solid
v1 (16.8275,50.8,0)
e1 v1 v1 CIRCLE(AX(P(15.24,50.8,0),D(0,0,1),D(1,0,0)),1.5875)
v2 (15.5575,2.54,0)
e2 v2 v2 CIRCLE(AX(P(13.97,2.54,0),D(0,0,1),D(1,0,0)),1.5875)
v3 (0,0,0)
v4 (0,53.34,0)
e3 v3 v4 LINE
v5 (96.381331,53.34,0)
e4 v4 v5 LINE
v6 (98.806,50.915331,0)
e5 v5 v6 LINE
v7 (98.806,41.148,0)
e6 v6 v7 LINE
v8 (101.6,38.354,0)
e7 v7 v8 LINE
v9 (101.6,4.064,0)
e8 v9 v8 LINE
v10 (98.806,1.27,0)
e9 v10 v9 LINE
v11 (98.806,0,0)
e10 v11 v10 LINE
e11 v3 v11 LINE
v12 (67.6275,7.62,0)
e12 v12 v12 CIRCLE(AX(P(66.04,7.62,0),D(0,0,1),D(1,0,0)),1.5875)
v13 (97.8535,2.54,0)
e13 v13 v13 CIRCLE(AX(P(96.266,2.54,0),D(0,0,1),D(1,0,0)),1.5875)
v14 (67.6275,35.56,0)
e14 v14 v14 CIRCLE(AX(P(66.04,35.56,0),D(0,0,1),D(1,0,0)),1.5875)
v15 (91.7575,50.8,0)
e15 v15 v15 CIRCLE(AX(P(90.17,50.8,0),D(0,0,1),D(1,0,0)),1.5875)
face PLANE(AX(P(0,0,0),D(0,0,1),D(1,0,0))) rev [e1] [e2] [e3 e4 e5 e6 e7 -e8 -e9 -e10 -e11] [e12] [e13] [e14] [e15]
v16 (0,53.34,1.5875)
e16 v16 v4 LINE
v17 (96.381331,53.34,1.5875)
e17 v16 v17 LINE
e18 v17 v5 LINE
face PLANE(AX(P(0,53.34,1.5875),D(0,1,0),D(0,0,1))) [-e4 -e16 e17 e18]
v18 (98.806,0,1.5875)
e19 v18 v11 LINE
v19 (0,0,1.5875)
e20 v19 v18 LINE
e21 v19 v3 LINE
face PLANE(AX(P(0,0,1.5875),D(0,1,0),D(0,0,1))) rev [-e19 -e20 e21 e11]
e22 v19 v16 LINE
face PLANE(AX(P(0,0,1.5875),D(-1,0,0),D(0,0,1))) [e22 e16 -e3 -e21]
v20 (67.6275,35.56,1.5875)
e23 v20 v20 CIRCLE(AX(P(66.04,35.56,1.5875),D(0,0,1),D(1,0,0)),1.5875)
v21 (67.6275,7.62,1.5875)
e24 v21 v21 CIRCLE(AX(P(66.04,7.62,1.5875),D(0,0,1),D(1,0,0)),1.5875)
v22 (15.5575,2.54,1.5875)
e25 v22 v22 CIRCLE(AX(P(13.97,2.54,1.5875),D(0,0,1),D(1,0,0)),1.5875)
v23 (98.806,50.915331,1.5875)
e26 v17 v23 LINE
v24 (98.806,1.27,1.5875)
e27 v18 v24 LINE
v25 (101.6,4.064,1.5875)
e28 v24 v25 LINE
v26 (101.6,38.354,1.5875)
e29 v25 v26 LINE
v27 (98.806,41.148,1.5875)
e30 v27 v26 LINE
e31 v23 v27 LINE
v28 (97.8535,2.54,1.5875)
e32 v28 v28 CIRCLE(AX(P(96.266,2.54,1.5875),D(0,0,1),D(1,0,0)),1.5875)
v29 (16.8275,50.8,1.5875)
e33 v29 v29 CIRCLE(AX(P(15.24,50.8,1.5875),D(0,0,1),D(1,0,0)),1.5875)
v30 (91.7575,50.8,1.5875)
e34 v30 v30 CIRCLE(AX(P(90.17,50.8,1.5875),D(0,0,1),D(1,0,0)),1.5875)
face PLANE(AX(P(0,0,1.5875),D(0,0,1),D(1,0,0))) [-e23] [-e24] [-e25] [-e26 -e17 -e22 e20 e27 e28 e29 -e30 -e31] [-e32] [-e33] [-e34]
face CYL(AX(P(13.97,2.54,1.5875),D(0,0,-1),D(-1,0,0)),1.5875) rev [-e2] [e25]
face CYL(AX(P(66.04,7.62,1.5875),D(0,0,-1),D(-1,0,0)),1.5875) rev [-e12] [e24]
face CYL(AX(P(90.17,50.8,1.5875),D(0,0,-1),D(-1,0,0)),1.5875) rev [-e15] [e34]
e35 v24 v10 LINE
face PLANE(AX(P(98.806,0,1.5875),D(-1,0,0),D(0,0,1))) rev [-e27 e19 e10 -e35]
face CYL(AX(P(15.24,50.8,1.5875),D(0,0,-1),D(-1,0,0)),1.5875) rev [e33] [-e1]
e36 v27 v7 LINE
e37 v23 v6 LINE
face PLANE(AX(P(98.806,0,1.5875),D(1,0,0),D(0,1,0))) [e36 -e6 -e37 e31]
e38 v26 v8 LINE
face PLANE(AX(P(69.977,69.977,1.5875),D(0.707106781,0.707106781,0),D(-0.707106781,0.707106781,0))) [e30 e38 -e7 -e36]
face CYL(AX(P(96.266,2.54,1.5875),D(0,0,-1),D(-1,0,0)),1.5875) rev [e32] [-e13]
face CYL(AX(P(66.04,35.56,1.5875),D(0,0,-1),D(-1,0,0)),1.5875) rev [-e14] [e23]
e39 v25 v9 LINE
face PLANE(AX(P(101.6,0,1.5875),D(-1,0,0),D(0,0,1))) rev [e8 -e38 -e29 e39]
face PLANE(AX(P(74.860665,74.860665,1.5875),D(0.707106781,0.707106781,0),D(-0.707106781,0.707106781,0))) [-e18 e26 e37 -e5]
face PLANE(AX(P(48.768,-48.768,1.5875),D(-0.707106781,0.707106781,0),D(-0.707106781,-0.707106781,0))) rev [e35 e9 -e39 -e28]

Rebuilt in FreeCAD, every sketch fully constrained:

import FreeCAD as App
import Part
import Sketcher
Q = App.Units.Quantity


def add_polygon(sketch, points):
    """Adds a closed chain of lines whose ends are joined by coincident constraints."""
    first, n = sketch.GeometryCount, len(points)
    for a, b in zip(points, points[1:] + points[:1]):
        sketch.addGeometry(Part.LineSegment(App.Vector(*a, 0), App.Vector(*b, 0)), False)
    for i in range(n):
        sketch.addConstraint(Sketcher.Constraint("Coincident", first + i, 2, first + (i + 1) % n, 1))

doc = App.newDocument("Part")
body = doc.addObject("PartDesign::Body", "Body")

sketch1 = body.newObject("Sketcher::SketchObject", "Sketch")
sketch1.AttachmentSupport = (doc.getObject("XY_Plane"), [""])
sketch1.MapMode = "FlatFace"
add_polygon(sketch1, [(0, 53.3), (0, 0), (98.8, 0), (98.8, 1.3), (101.6, 4.1), (101.6, 38.4), (98.8, 41.1), (98.8, 50.9), (96.4, 53.3)])
sketch1.addGeometry(Part.Circle(App.Vector(14, 2.5, 0), App.Vector(0, 0, 1), 1.6), False)
sketch1.addGeometry(Part.Circle(App.Vector(66, 7.6, 0), App.Vector(0, 0, 1), 1.6), False)
sketch1.addGeometry(Part.Circle(App.Vector(96.3, 2.5, 0), App.Vector(0, 0, 1), 1.6), False)
sketch1.addGeometry(Part.Circle(App.Vector(15.2, 50.8, 0), App.Vector(0, 0, 1), 1.6), False)
sketch1.addGeometry(Part.Circle(App.Vector(66, 35.6, 0), App.Vector(0, 0, 1), 1.6), False)
sketch1.addGeometry(Part.Circle(App.Vector(90.2, 50.8, 0), App.Vector(0, 0, 1), 1.6), False)
sketch1.addConstraint([
    Sketcher.Constraint("Vertical", 0),
    Sketcher.Constraint("Horizontal", 1),
    Sketcher.Constraint("Vertical", 2),
    Sketcher.Constraint("Vertical", 4),
    Sketcher.Constraint("Vertical", 6),
    Sketcher.Constraint("Horizontal", 8),
    Sketcher.Constraint("Coincident", 0, 2, -1, 1),
    Sketcher.Constraint("Equal", 9, 10),
    Sketcher.Constraint("Equal", 10, 11),
    Sketcher.Constraint("Equal", 11, 12),
    Sketcher.Constraint("Equal", 12, 13),
    Sketcher.Constraint("Equal", 13, 14),
    Sketcher.Constraint("Perpendicular", 3, 5),
    Sketcher.Constraint("Parallel", 5, 7),
    Sketcher.Constraint("Horizontal", 9, 3, 11, 3),
    Sketcher.Constraint("Horizontal", 12, 3, 14, 3),
    Sketcher.Constraint("Vertical", 10, 3, 13, 3),
    Sketcher.Constraint("Vertical", 2, 2, 5, 2),
    Sketcher.Constraint("Equal", 3, 5),
    Sketcher.Constraint("Diameter", 9, Q("0.125 in")),
    Sketcher.Constraint("DistanceY", 0, 2, 0, 1, Q("2.1 in")),
    Sketcher.Constraint("DistanceY", -1, 1, 12, 3, Q("2 in")),
    Sketcher.Constraint("DistanceX", -1, 1, 3, 2, Q("4 in")),
    Sketcher.Constraint("DistanceX", 12, 3, 10, 3, Q("2 in")),
    Sketcher.Constraint("DistanceX", 9, 3, 14, 3, Q("3 in")),
    Sketcher.Constraint("DistanceY", 9, 3, 8, 2, Q("2 in")),
    Sketcher.Constraint("DistanceX", 1, 1, 1, 2, Q("3.89 in")),
    Sketcher.Constraint("DistanceY", 2, 1, 2, 2, Q("0.05 in")),
    Sketcher.Constraint("DistanceY", 4, 1, 4, 2, Q("1.35 in")),
    Sketcher.Constraint("DistanceX", -1, 1, 10, 3, Q("2.6 in")),
    Sketcher.Constraint("DistanceY", -1, 1, 10, 3, Q("0.3 in")),
    Sketcher.Constraint("DistanceY", -1, 1, 13, 3, Q("1.4 in")),
    Sketcher.Constraint("DistanceX", 11, 3, 1, 2, Q("0.1 in")),
    Sketcher.Constraint("DistanceX", -1, 1, 9, 3, Q("0.55 in")),
    Sketcher.Constraint("Distance", 7, Q("0.135 in")),
])
pad1 = body.newObject("PartDesign::Pad", "Pad")
pad1.Profile = sketch1
pad1.Length = Q("0.0625 in")

doc.recompute()
